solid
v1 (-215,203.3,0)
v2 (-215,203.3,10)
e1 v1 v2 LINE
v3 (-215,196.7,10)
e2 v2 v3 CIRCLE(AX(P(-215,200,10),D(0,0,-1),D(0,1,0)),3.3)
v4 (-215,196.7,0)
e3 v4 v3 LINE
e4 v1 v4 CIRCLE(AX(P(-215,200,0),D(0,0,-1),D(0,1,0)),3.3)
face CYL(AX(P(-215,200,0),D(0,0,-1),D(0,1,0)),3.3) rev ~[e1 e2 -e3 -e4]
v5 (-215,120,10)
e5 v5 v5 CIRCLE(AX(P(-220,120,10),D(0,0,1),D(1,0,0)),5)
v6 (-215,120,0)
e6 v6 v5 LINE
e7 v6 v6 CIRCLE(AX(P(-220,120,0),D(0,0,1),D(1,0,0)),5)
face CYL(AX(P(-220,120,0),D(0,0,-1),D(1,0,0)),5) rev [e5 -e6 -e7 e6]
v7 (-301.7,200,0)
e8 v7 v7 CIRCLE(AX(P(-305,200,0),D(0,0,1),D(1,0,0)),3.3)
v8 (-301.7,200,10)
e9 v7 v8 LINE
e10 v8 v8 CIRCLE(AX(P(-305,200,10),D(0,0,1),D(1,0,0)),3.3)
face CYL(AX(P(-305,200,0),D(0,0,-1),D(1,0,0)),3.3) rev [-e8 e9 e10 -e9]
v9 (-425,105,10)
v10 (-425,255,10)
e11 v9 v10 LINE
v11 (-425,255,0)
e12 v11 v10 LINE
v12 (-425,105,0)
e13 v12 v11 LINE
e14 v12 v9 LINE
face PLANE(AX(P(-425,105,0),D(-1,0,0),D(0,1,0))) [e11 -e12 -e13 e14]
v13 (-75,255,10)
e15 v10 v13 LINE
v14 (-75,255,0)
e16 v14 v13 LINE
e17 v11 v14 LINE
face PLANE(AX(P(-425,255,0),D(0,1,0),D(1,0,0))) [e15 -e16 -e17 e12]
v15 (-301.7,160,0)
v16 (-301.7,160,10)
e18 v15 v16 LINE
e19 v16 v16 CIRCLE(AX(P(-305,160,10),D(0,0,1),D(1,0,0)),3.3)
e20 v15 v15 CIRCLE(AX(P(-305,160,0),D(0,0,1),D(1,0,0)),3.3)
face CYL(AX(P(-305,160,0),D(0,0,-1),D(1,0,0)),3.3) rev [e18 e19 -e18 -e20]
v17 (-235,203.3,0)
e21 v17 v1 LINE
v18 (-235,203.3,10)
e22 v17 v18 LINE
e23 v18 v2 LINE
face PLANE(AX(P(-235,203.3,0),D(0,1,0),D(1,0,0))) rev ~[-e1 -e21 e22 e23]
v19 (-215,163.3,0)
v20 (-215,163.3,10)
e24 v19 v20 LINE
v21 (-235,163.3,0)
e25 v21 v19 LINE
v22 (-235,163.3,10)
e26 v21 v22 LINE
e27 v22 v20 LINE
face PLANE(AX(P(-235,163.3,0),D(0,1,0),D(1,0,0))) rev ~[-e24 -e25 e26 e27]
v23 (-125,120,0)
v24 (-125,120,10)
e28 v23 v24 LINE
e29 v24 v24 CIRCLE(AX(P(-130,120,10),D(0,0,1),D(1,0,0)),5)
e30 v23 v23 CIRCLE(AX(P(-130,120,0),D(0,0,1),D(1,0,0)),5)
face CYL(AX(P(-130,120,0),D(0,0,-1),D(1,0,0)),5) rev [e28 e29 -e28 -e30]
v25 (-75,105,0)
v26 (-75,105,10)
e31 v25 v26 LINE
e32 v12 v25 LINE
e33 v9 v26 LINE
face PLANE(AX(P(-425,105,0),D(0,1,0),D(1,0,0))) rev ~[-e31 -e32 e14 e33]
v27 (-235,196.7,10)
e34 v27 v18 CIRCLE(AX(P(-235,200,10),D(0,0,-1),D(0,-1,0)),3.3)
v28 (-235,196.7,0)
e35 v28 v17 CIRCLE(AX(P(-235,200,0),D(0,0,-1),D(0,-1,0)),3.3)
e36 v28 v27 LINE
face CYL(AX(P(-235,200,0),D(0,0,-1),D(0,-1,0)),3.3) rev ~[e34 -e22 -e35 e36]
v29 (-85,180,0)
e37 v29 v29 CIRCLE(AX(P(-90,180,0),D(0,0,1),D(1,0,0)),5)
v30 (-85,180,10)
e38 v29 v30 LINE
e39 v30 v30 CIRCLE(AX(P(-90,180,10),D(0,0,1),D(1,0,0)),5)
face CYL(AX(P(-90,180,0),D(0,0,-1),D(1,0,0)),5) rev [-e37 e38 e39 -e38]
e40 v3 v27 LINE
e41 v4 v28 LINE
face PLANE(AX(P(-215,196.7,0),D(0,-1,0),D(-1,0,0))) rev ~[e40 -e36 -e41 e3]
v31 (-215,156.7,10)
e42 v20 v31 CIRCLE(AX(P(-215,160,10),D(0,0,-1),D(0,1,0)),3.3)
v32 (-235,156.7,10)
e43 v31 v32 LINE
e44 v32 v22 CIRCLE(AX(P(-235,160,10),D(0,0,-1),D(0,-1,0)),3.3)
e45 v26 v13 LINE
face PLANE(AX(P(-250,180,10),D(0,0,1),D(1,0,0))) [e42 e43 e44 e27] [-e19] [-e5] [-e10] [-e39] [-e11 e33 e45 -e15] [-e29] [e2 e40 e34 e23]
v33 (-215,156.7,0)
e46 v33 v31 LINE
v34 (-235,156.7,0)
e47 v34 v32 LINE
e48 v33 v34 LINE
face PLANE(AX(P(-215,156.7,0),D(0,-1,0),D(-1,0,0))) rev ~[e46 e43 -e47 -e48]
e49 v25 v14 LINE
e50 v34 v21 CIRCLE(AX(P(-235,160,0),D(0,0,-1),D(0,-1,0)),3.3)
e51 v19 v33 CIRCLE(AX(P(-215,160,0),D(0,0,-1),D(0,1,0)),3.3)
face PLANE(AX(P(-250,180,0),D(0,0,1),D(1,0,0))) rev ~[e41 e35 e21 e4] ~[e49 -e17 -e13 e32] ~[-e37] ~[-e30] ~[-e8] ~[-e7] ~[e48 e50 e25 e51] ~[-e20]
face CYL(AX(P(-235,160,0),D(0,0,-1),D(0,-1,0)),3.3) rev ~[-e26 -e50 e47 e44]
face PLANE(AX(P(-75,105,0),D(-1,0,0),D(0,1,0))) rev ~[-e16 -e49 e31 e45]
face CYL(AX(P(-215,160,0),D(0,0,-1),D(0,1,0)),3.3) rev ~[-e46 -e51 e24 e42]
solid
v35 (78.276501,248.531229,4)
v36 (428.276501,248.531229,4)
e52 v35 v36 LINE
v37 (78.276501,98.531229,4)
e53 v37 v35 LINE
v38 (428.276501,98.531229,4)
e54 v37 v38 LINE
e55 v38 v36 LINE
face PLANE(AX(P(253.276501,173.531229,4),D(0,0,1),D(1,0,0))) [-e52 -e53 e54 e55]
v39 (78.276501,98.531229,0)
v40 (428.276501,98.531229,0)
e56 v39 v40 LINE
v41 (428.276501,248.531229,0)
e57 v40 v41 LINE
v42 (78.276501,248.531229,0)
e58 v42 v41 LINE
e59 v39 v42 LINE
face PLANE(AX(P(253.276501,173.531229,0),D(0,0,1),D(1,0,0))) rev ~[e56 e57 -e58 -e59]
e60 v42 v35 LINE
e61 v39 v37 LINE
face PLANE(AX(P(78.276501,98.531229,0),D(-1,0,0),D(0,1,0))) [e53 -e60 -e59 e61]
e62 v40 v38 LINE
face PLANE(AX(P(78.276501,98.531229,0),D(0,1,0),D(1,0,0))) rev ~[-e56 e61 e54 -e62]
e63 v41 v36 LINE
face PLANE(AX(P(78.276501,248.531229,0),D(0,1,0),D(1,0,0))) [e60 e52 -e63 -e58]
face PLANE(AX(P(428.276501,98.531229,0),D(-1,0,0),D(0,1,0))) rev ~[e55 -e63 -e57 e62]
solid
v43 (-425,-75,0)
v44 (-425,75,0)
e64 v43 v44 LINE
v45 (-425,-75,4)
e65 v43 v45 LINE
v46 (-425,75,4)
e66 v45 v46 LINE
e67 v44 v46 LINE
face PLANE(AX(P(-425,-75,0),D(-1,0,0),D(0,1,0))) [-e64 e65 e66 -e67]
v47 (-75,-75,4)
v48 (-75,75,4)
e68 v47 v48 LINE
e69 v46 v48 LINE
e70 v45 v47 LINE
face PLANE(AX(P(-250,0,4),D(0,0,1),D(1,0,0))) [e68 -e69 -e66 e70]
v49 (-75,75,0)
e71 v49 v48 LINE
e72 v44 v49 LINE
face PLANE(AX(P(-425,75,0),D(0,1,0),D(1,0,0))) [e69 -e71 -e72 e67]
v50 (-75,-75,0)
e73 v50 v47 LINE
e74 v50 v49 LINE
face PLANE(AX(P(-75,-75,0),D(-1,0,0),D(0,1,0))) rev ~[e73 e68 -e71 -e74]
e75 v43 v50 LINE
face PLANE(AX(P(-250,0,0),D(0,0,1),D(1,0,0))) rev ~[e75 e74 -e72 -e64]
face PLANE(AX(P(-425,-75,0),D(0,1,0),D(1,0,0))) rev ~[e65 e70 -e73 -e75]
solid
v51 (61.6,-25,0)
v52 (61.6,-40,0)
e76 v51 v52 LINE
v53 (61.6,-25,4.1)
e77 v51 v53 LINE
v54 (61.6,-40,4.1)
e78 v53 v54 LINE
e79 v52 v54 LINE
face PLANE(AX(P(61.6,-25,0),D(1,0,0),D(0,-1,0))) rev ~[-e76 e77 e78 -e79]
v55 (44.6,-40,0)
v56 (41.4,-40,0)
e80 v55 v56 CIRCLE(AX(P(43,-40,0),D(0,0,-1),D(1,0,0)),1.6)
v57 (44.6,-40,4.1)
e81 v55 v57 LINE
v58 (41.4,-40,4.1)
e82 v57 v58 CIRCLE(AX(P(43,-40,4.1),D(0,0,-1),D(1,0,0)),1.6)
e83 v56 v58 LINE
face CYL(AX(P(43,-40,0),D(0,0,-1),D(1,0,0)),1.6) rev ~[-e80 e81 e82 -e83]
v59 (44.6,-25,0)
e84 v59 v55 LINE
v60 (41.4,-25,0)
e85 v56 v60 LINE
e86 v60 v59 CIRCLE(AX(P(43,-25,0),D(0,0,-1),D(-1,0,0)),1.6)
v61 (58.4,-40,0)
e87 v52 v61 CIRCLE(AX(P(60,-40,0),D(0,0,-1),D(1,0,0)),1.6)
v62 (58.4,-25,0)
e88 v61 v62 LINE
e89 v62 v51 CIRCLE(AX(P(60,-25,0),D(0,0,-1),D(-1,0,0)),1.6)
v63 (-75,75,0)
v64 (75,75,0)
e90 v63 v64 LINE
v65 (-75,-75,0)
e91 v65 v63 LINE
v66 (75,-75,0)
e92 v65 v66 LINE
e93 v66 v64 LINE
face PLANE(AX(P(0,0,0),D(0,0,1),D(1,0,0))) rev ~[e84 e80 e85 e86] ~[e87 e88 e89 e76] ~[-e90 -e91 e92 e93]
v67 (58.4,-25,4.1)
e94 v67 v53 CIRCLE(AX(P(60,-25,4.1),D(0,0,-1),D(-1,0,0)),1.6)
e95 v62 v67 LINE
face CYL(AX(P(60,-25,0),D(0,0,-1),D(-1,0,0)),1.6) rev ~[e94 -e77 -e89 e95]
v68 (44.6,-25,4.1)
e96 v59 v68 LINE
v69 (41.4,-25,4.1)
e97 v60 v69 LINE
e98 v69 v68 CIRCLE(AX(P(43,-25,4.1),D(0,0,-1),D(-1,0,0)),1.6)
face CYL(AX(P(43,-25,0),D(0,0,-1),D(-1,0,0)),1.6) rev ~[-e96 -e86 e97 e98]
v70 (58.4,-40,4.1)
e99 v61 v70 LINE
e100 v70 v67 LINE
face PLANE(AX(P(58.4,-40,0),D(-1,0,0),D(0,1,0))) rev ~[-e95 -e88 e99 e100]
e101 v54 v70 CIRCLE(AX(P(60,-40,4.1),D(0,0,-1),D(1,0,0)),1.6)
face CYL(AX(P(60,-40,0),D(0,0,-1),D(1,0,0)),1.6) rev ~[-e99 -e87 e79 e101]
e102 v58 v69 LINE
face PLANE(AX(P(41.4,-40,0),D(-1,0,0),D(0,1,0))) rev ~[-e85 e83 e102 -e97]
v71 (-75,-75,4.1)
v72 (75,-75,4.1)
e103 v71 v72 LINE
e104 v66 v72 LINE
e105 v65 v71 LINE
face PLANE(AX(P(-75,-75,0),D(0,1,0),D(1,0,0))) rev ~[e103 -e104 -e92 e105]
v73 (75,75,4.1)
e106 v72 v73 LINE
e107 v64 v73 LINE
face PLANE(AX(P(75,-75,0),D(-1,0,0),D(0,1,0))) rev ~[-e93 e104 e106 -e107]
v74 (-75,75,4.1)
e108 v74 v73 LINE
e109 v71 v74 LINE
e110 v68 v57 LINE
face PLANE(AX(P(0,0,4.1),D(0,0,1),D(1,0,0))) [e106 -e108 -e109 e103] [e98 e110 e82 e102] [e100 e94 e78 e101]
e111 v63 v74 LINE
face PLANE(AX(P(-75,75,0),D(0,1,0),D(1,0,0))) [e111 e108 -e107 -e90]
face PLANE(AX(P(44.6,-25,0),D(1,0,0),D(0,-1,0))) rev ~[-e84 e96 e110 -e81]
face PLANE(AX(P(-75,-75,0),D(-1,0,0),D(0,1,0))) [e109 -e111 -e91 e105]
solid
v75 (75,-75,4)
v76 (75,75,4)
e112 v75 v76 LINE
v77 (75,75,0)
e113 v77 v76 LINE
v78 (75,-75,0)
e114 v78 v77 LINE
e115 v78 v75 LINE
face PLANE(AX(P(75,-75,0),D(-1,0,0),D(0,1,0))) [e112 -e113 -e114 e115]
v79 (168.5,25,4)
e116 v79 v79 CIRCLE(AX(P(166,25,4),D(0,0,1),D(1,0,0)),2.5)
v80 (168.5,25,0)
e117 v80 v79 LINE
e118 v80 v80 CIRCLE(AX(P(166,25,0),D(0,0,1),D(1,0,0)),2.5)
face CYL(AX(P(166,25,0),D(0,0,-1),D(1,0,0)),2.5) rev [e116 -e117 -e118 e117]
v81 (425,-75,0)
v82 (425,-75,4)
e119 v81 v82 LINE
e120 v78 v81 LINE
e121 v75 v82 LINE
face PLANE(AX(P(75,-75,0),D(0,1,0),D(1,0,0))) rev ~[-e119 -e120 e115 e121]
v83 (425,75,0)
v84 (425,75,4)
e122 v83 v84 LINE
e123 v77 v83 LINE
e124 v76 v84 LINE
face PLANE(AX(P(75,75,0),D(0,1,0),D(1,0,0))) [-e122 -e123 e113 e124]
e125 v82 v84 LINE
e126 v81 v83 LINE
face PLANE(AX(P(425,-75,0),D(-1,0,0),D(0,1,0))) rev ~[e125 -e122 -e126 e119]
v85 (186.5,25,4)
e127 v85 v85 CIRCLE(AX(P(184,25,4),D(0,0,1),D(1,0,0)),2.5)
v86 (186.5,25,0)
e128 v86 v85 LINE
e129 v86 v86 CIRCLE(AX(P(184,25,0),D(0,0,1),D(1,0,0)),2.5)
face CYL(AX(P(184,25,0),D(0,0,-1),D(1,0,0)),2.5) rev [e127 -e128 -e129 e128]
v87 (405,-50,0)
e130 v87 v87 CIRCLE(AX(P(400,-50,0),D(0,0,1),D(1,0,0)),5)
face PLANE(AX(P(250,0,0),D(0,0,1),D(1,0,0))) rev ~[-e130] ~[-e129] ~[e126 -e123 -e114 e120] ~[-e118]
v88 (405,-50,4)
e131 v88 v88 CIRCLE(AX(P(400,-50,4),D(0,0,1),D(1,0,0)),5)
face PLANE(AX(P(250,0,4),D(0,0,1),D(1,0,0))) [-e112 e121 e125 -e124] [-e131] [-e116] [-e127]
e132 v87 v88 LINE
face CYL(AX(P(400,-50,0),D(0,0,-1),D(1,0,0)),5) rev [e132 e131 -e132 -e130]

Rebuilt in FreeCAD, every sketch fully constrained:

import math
import FreeCAD as App
import Part
import Sketcher
Q = App.Units.Quantity

doc = App.newDocument("Part")
params = doc.addObject("Spreadsheet::Sheet", "Params")
for row, (alias, value) in enumerate([
    ("sketch1_diameter", "10 mm"),
    ("sketch1_diameter2", "5 mm"),
    ("sketch1_width", "350 mm"),
    ("sketch1_height", "150 mm"),
    ("pad1_length", "4 mm"),
    ("sketch2_radius", "1.6 mm"),
    ("sketch2_width", "150 mm"),
    ("sketch2_height", "15 mm"),
    ("pad2_length", "4.1 mm"),
    ("sketch3_diameter", "10 mm"),
    ("sketch3_diameter2", "6.6 mm"),
    ("sketch3_width", "350 mm"),
    ("sketch3_width2", "20 mm"),
    ("sketch3_height", "150 mm"),
    ("pad3_length", "10 mm"),
    ("sketch4_width", "350 mm"),
    ("sketch4_height", "150 mm"),
    ("pad4_length", "4 mm"),
], start=1):
    params.set(f"A{row}", alias)
    params.set(f"B{row}", "=" + value)
    params.setAlias(f"B{row}", alias)

body = doc.addObject("PartDesign::Body", "Body")
body.AllowCompound = True

sketch1 = doc.addObject("Sketcher::SketchObject", "Sketch")
body.addObject(sketch1)
sketch1.AttachmentSupport = (doc.XY_Plane, [""])
sketch1.MapMode = "FlatFace"
sketch1.addGeometry([
    Part.LineSegment(App.Vector(-425, 75, 0), App.Vector(-425, -75, 0)),
    Part.LineSegment(App.Vector(-425, -75, 0), App.Vector(-75, -75, 0)),
    Part.LineSegment(App.Vector(-75, -75, 0), App.Vector(-75, 75, 0)),
    Part.LineSegment(App.Vector(-75, 75, 0), App.Vector(-425, 75, 0)),
    Part.LineSegment(App.Vector(75, 75, 0), App.Vector(75, -75, 0)),
    Part.LineSegment(App.Vector(75, -75, 0), App.Vector(425, -75, 0)),
    Part.LineSegment(App.Vector(425, -75, 0), App.Vector(425, 75, 0)),
    Part.LineSegment(App.Vector(425, 75, 0), App.Vector(75, 75, 0)),
    Part.Circle(App.Vector(400, -50, 0), App.Vector(0, 0, 1), 5),
    Part.Circle(App.Vector(166, 25, 0), App.Vector(0, 0, 1), 2.5),
    Part.Circle(App.Vector(184, 25, 0), App.Vector(0, 0, 1), 2.5),
], False)
sketch1.addConstraint([
    Sketcher.Constraint("Coincident", 0, 2, 1, 1),
    Sketcher.Constraint("Coincident", 1, 2, 2, 1),
    Sketcher.Constraint("Coincident", 2, 2, 3, 1),
    Sketcher.Constraint("Coincident", 3, 2, 0, 1),
    Sketcher.Constraint("Coincident", 4, 2, 5, 1),
    Sketcher.Constraint("Coincident", 5, 2, 6, 1),
    Sketcher.Constraint("Coincident", 6, 2, 7, 1),
    Sketcher.Constraint("Coincident", 7, 2, 4, 1),
    Sketcher.Constraint("Vertical", 0),
    Sketcher.Constraint("Horizontal", 1),
    Sketcher.Constraint("Vertical", 2),
    Sketcher.Constraint("Horizontal", 3),
    Sketcher.Constraint("Vertical", 4),
    Sketcher.Constraint("Horizontal", 5),
    Sketcher.Constraint("Vertical", 6),
    Sketcher.Constraint("Horizontal", 7),
    Sketcher.Constraint("Equal", 9, 10),
    Sketcher.Constraint("Symmetric", 2, 2, 4, 2, -1, 1),
    Sketcher.Constraint("Symmetric", 0, 2, 6, 2, -1, 1),
    Sketcher.Constraint("Horizontal", 9, 3, 10, 3),
    Sketcher.Constraint("Horizontal", 1, 2, 4, 2),
    Sketcher.Constraint("Diameter", 8, Q("10 mm")),
    Sketcher.Constraint("Diameter", 9, Q("5 mm")),
    Sketcher.Constraint("DistanceX", 1, 1, 1, 2, Q("350 mm")),
    Sketcher.Constraint("DistanceY", 0, 2, 0, 1, Q("150 mm")),
    Sketcher.Constraint("DistanceX", -1, 1, 8, 3, Q("400 mm")),
    Sketcher.Constraint("DistanceY", 8, 3, -1, 1, Q("50 mm")),
    Sketcher.Constraint("DistanceX", -1, 1, 9, 3, Q("166 mm")),
    Sketcher.Constraint("DistanceY", -1, 1, 9, 3, Q("25 mm")),
    Sketcher.Constraint("DistanceX", -1, 1, 10, 3, Q("184 mm")),
    Sketcher.Constraint("DistanceX", 0, 2, -1, 1, Q("425 mm")),
])
sketch1.setExpression("Constraints[21]", "Params.sketch1_diameter")
sketch1.setExpression("Constraints[22]", "Params.sketch1_diameter2")
sketch1.setExpression("Constraints[23]", "Params.sketch1_width")
sketch1.setExpression("Constraints[24]", "Params.sketch1_height")
pad1 = doc.addObject("PartDesign::Pad", "Pad")
body.addObject(pad1)
pad1.Profile = sketch1
pad1.setExpression("Length", "Params.pad1_length")
body2 = doc.addObject("PartDesign::Body", "Body001")

sketch2 = doc.addObject("Sketcher::SketchObject", "Sketch001")
body2.addObject(sketch2)
sketch2.AttachmentSupport = (doc.getObject("XY_Plane001"), [""])
sketch2.MapMode = "FlatFace"
sketch2.addGeometry([
    Part.LineSegment(App.Vector(-75, 75, 0), App.Vector(-75, -75, 0)),
    Part.LineSegment(App.Vector(-75, -75, 0), App.Vector(75, -75, 0)),
    Part.LineSegment(App.Vector(75, -75, 0), App.Vector(75, 75, 0)),
    Part.LineSegment(App.Vector(75, 75, 0), App.Vector(-75, 75, 0)),
    Part.ArcOfCircle(Part.Circle(App.Vector(43, -25, 0), App.Vector(0, 0, 1), 1.6), math.radians(0), math.radians(180)),
    Part.LineSegment(App.Vector(44.6, -25, 0), App.Vector(44.6, -40, 0)),
    Part.ArcOfCircle(Part.Circle(App.Vector(43, -40, 0), App.Vector(0, 0, 1), 1.6), math.radians(180), math.radians(360)),
    Part.LineSegment(App.Vector(41.4, -40, 0), App.Vector(41.4, -25, 0)),
    Part.ArcOfCircle(Part.Circle(App.Vector(60, -25, 0), App.Vector(0, 0, 1), 1.6), math.radians(0), math.radians(180)),
    Part.LineSegment(App.Vector(61.6, -25, 0), App.Vector(61.6, -40, 0)),
    Part.ArcOfCircle(Part.Circle(App.Vector(60, -40, 0), App.Vector(0, 0, 1), 1.6), math.radians(180), math.radians(360)),
    Part.LineSegment(App.Vector(58.4, -40, 0), App.Vector(58.4, -25, 0)),
], False)
sketch2.addConstraint([
    Sketcher.Constraint("Coincident", 0, 2, 1, 1),
    Sketcher.Constraint("Coincident", 1, 2, 2, 1),
    Sketcher.Constraint("Coincident", 2, 2, 3, 1),
    Sketcher.Constraint("Coincident", 3, 2, 0, 1),
    Sketcher.Constraint("Tangent", 4, 1, 5, 1),
    Sketcher.Constraint("Tangent", 5, 2, 6, 2),
    Sketcher.Constraint("Tangent", 6, 1, 7, 1),
    Sketcher.Constraint("Tangent", 7, 2, 4, 2),
    Sketcher.Constraint("Tangent", 8, 1, 9, 1),
    Sketcher.Constraint("Tangent", 9, 2, 10, 2),
    Sketcher.Constraint("Tangent", 10, 1, 11, 1),
    Sketcher.Constraint("Tangent", 11, 2, 8, 2),
    Sketcher.Constraint("Vertical", 0),
    Sketcher.Constraint("Horizontal", 1),
    Sketcher.Constraint("Vertical", 2),
    Sketcher.Constraint("Horizontal", 3),
    Sketcher.Constraint("Vertical", 5),
    Sketcher.Constraint("Vertical", 7),
    Sketcher.Constraint("Vertical", 9),
    Sketcher.Constraint("Vertical", 11),
    Sketcher.Constraint("Equal", 6, 8),
    Sketcher.Constraint("Symmetric", 0, 2, 2, 2, -1, 1),
    Sketcher.Constraint("Horizontal", 4, 3, 8, 3),
    Sketcher.Constraint("Horizontal", 6, 3, 10, 3),
    Sketcher.Constraint("Equal", 3, 0),
    Sketcher.Constraint("Radius", 4, Q("1.6 mm")),
    Sketcher.Constraint("DistanceX", 1, 1, 1, 2, Q("150 mm")),
    Sketcher.Constraint("DistanceY", 5, 2, 5, 1, Q("15 mm")),
    Sketcher.Constraint("DistanceX", -1, 1, 4, 3, Q("43 mm")),
    Sketcher.Constraint("DistanceY", 4, 3, -1, 1, Q("25 mm")),
    Sketcher.Constraint("DistanceX", -1, 1, 8, 3, Q("60 mm")),
])
sketch2.setExpression("Constraints[25]", "Params.sketch2_radius")
sketch2.setExpression("Constraints[26]", "Params.sketch2_width")
sketch2.setExpression("Constraints[27]", "Params.sketch2_height")
pad2 = doc.addObject("PartDesign::Pad", "Pad001")
body2.addObject(pad2)
pad2.Profile = sketch2
pad2.setExpression("Length", "Params.pad2_length")
body3 = doc.addObject("PartDesign::Body", "Body002")

sketch3 = doc.addObject("Sketcher::SketchObject", "Sketch002")
body3.addObject(sketch3)
sketch3.AttachmentSupport = (doc.getObject("XY_Plane002"), [""])
sketch3.MapMode = "FlatFace"
sketch3.addGeometry([
    Part.LineSegment(App.Vector(-425, 255, 0), App.Vector(-425, 105, 0)),
    Part.LineSegment(App.Vector(-425, 105, 0), App.Vector(-75, 105, 0)),
    Part.LineSegment(App.Vector(-75, 105, 0), App.Vector(-75, 255, 0)),
    Part.LineSegment(App.Vector(-75, 255, 0), App.Vector(-425, 255, 0)),
    Part.Circle(App.Vector(-220, 120, 0), App.Vector(0, 0, 1), 5),
    Part.Circle(App.Vector(-130, 120, 0), App.Vector(0, 0, 1), 5),
    Part.Circle(App.Vector(-305, 160, 0), App.Vector(0, 0, 1), 3.3),
    Part.ArcOfCircle(Part.Circle(App.Vector(-235, 160, 0), App.Vector(0, 0, 1), 3.3), math.radians(90), math.radians(270)),
    Part.LineSegment(App.Vector(-235, 163.3, 0), App.Vector(-215, 163.3, 0)),
    Part.ArcOfCircle(Part.Circle(App.Vector(-215, 160, 0), App.Vector(0, 0, 1), 3.3), math.radians(-90), math.radians(90)),
    Part.LineSegment(App.Vector(-215, 156.7, 0), App.Vector(-235, 156.7, 0)),
    Part.Circle(App.Vector(-305, 200, 0), App.Vector(0, 0, 1), 3.3),
    Part.ArcOfCircle(Part.Circle(App.Vector(-235, 200, 0), App.Vector(0, 0, 1), 3.3), math.radians(90), math.radians(270)),
    Part.LineSegment(App.Vector(-235, 203.3, 0), App.Vector(-215, 203.3, 0)),
    Part.ArcOfCircle(Part.Circle(App.Vector(-215, 200, 0), App.Vector(0, 0, 1), 3.3), math.radians(-90), math.radians(90)),
    Part.LineSegment(App.Vector(-215, 196.7, 0), App.Vector(-235, 196.7, 0)),
    Part.Circle(App.Vector(-90, 180, 0), App.Vector(0, 0, 1), 5),
], False)
sketch3.addConstraint([
    Sketcher.Constraint("Coincident", 0, 2, 1, 1),
    Sketcher.Constraint("Coincident", 1, 2, 2, 1),
    Sketcher.Constraint("Coincident", 2, 2, 3, 1),
    Sketcher.Constraint("Coincident", 3, 2, 0, 1),
    Sketcher.Constraint("Tangent", 7, 1, 8, 1),
    Sketcher.Constraint("Tangent", 8, 2, 9, 2),
    Sketcher.Constraint("Tangent", 9, 1, 10, 1),
    Sketcher.Constraint("Tangent", 10, 2, 7, 2),
    Sketcher.Constraint("Tangent", 12, 1, 13, 1),
    Sketcher.Constraint("Tangent", 13, 2, 14, 2),
    Sketcher.Constraint("Tangent", 14, 1, 15, 1),
    Sketcher.Constraint("Tangent", 15, 2, 12, 2),
    Sketcher.Constraint("Vertical", 0),
    Sketcher.Constraint("Horizontal", 1),
    Sketcher.Constraint("Vertical", 2),
    Sketcher.Constraint("Horizontal", 3),
    Sketcher.Constraint("Horizontal", 8),
    Sketcher.Constraint("Horizontal", 10),
    Sketcher.Constraint("Horizontal", 13),
    Sketcher.Constraint("Horizontal", 15),
    Sketcher.Constraint("Equal", 4, 5),
    Sketcher.Constraint("Equal", 6, 7),
    Sketcher.Constraint("Equal", 9, 11),
    Sketcher.Constraint("Equal", 11, 12),
    Sketcher.Constraint("Equal", 5, 16),
    Sketcher.Constraint("Horizontal", 4, 3, 5, 3),
    Sketcher.Constraint("Horizontal", 6, 3, 7, 3),
    Sketcher.Constraint("Horizontal", 11, 3, 12, 3),
    Sketcher.Constraint("Vertical", 6, 3, 11, 3),
    Sketcher.Constraint("Vertical", 7, 3, 12, 3),
    Sketcher.Constraint("Vertical", 9, 3, 14, 3),
    Sketcher.Constraint("Diameter", 4, Q("10 mm")),
    Sketcher.Constraint("Diameter", 6, Q("6.6 mm")),
    Sketcher.Constraint("DistanceX", 1, 1, 1, 2, Q("350 mm")),
    Sketcher.Constraint("DistanceX", 8, 1, 8, 2, Q("20 mm")),
    Sketcher.Constraint("DistanceY", 0, 2, 0, 1, Q("150 mm")),
    Sketcher.Constraint("DistanceX", 4, 3, -1, 1, Q("220 mm")),
    Sketcher.Constraint("DistanceY", -1, 1, 4, 3, Q("120 mm")),
    Sketcher.Constraint("DistanceX", 5, 3, -1, 1, Q("130 mm")),
    Sketcher.Constraint("DistanceX", 6, 3, -1, 1, Q("305 mm")),
    Sketcher.Constraint("DistanceY", -1, 1, 6, 3, Q("160 mm")),
    Sketcher.Constraint("DistanceX", 7, 3, -1, 1, Q("235 mm")),
    Sketcher.Constraint("DistanceY", -1, 1, 11, 3, Q("200 mm")),
    Sketcher.Constraint("DistanceX", 16, 3, -1, 1, Q("90 mm")),
    Sketcher.Constraint("DistanceY", -1, 1, 16, 3, Q("180 mm")),
    Sketcher.Constraint("DistanceX", 0, 2, -1, 1, Q("425 mm")),
    Sketcher.Constraint("DistanceY", -1, 1, 0, 2, Q("105 mm")),
])
sketch3.setExpression("Constraints[31]", "Params.sketch3_diameter")
sketch3.setExpression("Constraints[32]", "Params.sketch3_diameter2")
sketch3.setExpression("Constraints[33]", "Params.sketch3_width")
sketch3.setExpression("Constraints[34]", "Params.sketch3_width2")
sketch3.setExpression("Constraints[35]", "Params.sketch3_height")
pad3 = doc.addObject("PartDesign::Pad", "Pad002")
body3.addObject(pad3)
pad3.Profile = sketch3
pad3.setExpression("Length", "Params.pad3_length")
body4 = doc.addObject("PartDesign::Body", "Body003")

sketch4 = doc.addObject("Sketcher::SketchObject", "Sketch003")
body4.addObject(sketch4)
sketch4.AttachmentSupport = (doc.getObject("XY_Plane003"), [""])
sketch4.MapMode = "FlatFace"
sketch4.addGeometry([
    Part.LineSegment(App.Vector(78.276501, 248.531229, 0), App.Vector(78.276501, 98.531229, 0)),
    Part.LineSegment(App.Vector(78.276501, 98.531229, 0), App.Vector(428.276501, 98.531229, 0)),
    Part.LineSegment(App.Vector(428.276501, 98.531229, 0), App.Vector(428.276501, 248.531229, 0)),
    Part.LineSegment(App.Vector(428.276501, 248.531229, 0), App.Vector(78.276501, 248.531229, 0)),
], False)
sketch4.addConstraint([
    Sketcher.Constraint("Coincident", 0, 2, 1, 1),
    Sketcher.Constraint("Coincident", 1, 2, 2, 1),
    Sketcher.Constraint("Coincident", 2, 2, 3, 1),
    Sketcher.Constraint("Coincident", 3, 2, 0, 1),
    Sketcher.Constraint("Vertical", 0),
    Sketcher.Constraint("Horizontal", 1),
    Sketcher.Constraint("Vertical", 2),
    Sketcher.Constraint("Horizontal", 3),
    Sketcher.Constraint("DistanceX", 1, 1, 1, 2, Q("350 mm")),
    Sketcher.Constraint("DistanceY", 0, 2, 0, 1, Q("150 mm")),
    Sketcher.Constraint("DistanceX", -1, 1, 0, 2, Q("78.276501 mm")),
    Sketcher.Constraint("DistanceY", -1, 1, 0, 2, Q("98.531229 mm")),
])
sketch4.setExpression("Constraints[8]", "Params.sketch4_width")
sketch4.setExpression("Constraints[9]", "Params.sketch4_height")
pad4 = doc.addObject("PartDesign::Pad", "Pad003")
body4.addObject(pad4)
pad4.Profile = sketch4
pad4.setExpression("Length", "Params.pad4_length")

doc.recompute()
